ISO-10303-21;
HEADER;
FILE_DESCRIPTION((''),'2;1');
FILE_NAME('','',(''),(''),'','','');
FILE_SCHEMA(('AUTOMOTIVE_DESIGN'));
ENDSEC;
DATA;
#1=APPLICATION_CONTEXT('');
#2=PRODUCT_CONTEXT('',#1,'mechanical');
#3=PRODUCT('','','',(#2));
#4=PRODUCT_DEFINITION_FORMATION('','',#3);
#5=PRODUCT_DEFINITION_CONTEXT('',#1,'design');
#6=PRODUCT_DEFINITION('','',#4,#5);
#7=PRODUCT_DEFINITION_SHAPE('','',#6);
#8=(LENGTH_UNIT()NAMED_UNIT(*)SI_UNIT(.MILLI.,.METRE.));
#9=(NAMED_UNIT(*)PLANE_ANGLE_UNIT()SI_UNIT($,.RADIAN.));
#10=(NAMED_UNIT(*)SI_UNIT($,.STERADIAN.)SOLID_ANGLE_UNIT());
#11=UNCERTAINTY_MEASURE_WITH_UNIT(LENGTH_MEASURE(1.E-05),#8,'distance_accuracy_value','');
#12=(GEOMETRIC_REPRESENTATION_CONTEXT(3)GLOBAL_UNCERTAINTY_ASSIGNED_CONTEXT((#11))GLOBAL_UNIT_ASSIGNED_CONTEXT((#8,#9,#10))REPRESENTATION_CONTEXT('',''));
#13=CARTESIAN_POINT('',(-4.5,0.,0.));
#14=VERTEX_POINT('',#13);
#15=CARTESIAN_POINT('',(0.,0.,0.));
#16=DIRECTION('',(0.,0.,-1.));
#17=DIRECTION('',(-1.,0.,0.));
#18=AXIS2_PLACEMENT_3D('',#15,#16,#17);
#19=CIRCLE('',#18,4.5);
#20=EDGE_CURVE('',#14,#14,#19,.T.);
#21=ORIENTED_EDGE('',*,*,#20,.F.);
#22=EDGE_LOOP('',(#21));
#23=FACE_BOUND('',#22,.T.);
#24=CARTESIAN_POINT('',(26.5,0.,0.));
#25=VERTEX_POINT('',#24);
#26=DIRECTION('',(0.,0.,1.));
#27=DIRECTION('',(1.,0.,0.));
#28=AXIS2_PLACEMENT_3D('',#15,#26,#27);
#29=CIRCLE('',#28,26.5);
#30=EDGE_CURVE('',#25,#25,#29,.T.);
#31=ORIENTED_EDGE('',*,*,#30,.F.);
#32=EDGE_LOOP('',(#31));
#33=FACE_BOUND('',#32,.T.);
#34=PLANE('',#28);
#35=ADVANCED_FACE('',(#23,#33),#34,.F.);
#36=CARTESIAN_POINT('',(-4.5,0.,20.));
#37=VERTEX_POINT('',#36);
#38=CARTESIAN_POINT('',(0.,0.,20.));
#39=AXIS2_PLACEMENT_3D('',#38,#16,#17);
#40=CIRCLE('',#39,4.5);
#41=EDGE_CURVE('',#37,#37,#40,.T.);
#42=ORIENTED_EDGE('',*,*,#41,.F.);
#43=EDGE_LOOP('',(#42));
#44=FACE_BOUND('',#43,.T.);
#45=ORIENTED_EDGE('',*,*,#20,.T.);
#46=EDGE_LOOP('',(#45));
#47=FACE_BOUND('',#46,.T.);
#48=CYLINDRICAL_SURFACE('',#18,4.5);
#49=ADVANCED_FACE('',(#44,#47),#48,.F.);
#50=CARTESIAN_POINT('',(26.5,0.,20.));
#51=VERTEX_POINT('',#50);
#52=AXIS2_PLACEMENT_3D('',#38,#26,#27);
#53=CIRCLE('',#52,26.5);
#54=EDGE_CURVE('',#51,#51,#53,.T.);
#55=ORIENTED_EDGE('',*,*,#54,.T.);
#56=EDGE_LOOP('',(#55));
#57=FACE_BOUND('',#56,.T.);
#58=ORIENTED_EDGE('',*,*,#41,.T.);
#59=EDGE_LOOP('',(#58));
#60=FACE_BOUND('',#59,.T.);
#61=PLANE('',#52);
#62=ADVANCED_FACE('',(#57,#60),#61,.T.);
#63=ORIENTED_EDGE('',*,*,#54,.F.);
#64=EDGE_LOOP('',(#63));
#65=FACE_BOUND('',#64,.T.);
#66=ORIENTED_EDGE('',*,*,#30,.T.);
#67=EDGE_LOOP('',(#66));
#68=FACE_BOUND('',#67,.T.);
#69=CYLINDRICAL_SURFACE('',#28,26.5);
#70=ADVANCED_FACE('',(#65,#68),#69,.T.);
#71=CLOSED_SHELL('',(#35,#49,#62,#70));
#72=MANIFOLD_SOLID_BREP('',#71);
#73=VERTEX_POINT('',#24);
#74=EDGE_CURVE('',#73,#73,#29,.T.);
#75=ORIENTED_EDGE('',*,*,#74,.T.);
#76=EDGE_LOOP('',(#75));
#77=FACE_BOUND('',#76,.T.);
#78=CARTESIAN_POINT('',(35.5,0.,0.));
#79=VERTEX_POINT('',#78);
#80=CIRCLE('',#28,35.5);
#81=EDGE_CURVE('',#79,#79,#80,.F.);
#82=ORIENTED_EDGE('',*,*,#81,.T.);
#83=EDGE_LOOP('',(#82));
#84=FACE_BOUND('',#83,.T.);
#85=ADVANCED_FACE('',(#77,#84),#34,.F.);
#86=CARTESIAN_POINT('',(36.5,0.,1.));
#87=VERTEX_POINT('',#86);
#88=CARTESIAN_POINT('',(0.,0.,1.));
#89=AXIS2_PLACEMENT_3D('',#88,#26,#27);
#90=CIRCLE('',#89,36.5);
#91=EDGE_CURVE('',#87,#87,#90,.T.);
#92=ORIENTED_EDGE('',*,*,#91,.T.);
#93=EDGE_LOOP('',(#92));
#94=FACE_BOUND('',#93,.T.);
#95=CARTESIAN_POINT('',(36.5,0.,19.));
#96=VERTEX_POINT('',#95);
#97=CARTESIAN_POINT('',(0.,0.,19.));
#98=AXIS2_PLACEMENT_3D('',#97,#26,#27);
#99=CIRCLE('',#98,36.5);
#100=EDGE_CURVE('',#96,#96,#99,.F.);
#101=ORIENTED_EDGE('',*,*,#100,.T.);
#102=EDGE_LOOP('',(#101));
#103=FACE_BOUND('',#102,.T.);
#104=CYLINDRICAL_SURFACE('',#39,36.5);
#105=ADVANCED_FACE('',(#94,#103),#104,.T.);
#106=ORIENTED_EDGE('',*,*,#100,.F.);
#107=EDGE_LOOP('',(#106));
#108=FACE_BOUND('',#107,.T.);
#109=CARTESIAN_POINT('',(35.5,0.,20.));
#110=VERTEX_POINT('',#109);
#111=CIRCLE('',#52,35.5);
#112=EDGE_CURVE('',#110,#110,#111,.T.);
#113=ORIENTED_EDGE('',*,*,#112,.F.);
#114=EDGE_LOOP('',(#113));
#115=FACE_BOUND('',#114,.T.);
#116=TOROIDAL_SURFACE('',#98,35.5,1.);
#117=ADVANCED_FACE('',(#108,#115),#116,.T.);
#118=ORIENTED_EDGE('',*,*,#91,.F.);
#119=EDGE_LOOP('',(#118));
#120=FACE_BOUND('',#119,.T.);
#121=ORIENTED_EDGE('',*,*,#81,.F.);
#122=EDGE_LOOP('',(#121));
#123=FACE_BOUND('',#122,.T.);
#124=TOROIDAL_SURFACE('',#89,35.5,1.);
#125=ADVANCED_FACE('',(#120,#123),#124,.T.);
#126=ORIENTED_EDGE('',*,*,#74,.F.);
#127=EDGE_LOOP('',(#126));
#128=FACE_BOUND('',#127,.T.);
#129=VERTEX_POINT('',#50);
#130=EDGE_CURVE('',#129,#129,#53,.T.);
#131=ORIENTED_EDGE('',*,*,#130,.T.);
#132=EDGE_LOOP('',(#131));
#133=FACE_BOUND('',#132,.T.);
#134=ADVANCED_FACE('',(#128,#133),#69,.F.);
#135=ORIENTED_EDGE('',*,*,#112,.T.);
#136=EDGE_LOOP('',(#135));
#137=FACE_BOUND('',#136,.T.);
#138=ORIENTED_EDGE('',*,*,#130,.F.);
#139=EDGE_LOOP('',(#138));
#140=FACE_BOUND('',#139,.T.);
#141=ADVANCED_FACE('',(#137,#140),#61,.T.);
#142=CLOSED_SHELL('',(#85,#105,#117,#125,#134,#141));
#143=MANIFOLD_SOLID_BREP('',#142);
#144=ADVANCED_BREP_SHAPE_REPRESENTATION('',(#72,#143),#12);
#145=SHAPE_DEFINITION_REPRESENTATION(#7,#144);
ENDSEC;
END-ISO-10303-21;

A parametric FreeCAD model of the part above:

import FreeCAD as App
import Part
import Sketcher

V = App.Vector


def edges_at(feature, points):
    """Names of the edges that pass closest to the given points."""
    edges = feature.Shape.Edges
    near = lambda p: min(range(len(edges)), key=lambda i: edges[i].distToShape(Part.Vertex(*p))[0])
    return sorted({f"Edge{near(p) + 1}" for p in points})


def add_polygon(sketch, points):
    """Adds a closed chain of lines whose ends are joined by coincident constraints."""
    first, n = sketch.GeometryCount, len(points)
    for a, b in zip(points, points[1:] + points[:1]):
        sketch.addGeometry(Part.LineSegment(App.Vector(*a, 0), App.Vector(*b, 0)), False)
    for i in range(n):
        sketch.addConstraint(Sketcher.Constraint("Coincident", first + i, 2, first + (i + 1) % n, 1))

doc = App.newDocument("Part")
body = doc.addObject("PartDesign::Body", "Body")

sketch1 = body.newObject("Sketcher::SketchObject", "Sketch")
sketch1.AttachmentSupport = (doc.getObject("XY_Plane"), [""])
sketch1.MapMode = "FlatFace"
sketch1.addGeometry(Part.Circle(V(0, 0, 0), V(0, 0, 1), 36), False)
sketch1.addConstraint(Sketcher.Constraint("Coincident", 0, 3, -1, 1))
sketch1.addConstraint(Sketcher.Constraint("Diameter", 0, 73.0))
pad1 = body.newObject("PartDesign::Pad", "Pad")
pad1.Profile = sketch1
pad1.Length = 20

sketch2 = body.newObject("Sketcher::SketchObject", "Sketch001")
sketch2.AttachmentSupport = (doc.getObject("XY_Plane"), [""])
sketch2.MapMode = "FlatFace"
sketch2.AttachmentOffset = App.Placement(V(0, 0, 20), App.Rotation())
sketch2.addGeometry(Part.Circle(V(0, 0, 0), V(0, 0, 1), 26), False)
sketch2.addConstraint(Sketcher.Constraint("Coincident", 0, 3, -1, 1))
sketch2.addConstraint(Sketcher.Constraint("Diameter", 0, 53.0))
pocket1 = body.newObject("PartDesign::Pocket", "Pocket")
pocket1.Profile = sketch2
pocket1.Length = 20
doc.recompute()

fillet = body.newObject("PartDesign::Fillet", "Fillet")
fillet.Base = (pocket1, edges_at(pocket1, [(-36.5, 0, 0), (-36.5, 0, 20)]))
fillet.Radius = 1
body2 = doc.addObject("PartDesign::Body", "Body001")

sketch3 = body2.newObject("Sketcher::SketchObject", "Sketch002")
sketch3.AttachmentSupport = (doc.getObject("XY_Plane001"), [""])
sketch3.MapMode = "FlatFace"
sketch3.AttachmentOffset = App.Placement(V(0, 0, 20), App.Rotation())
sketch3.addGeometry(Part.Circle(V(0, 0, 0), V(0, 0, 1), 26), False)
sketch3.addConstraint(Sketcher.Constraint("Coincident", 0, 3, -1, 1))
sketch3.addConstraint(Sketcher.Constraint("Diameter", 0, 53.0))
pad2 = body2.newObject("PartDesign::Pad", "Pad001")
pad2.Profile = sketch3
pad2.Length = 20
pad2.Reversed = True

sketch4 = body2.newObject("Sketcher::SketchObject", "Sketch003")
sketch4.AttachmentSupport = (doc.getObject("YZ_Plane001"), [""])
sketch4.MapMode = "FlatFace"
add_polygon(sketch4, [(0, 20), (0, 0), (4.5, 0), (4.5, 20)])
sketch4.addConstraint(Sketcher.Constraint("Vertical", 0))
sketch4.addConstraint(Sketcher.Constraint("Horizontal", 1))
sketch4.addConstraint(Sketcher.Constraint("Vertical", 2))
sketch4.addConstraint(Sketcher.Constraint("Horizontal", 3))
sketch4.addConstraint(Sketcher.Constraint("Coincident", 0, 2, -1, 1))
sketch4.addConstraint(Sketcher.Constraint("DistanceY", 0, 2, 0, 1, 20.0))
sketch4.addConstraint(Sketcher.Constraint("DistanceX", 1, 1, 1, 2, 4.5))
groove = body2.newObject("PartDesign::Groove", "Groove")
groove.Profile = sketch4
groove.ReferenceAxis = (sketch4, ["V_Axis"])
groove.Angle = 360

doc.recompute()
